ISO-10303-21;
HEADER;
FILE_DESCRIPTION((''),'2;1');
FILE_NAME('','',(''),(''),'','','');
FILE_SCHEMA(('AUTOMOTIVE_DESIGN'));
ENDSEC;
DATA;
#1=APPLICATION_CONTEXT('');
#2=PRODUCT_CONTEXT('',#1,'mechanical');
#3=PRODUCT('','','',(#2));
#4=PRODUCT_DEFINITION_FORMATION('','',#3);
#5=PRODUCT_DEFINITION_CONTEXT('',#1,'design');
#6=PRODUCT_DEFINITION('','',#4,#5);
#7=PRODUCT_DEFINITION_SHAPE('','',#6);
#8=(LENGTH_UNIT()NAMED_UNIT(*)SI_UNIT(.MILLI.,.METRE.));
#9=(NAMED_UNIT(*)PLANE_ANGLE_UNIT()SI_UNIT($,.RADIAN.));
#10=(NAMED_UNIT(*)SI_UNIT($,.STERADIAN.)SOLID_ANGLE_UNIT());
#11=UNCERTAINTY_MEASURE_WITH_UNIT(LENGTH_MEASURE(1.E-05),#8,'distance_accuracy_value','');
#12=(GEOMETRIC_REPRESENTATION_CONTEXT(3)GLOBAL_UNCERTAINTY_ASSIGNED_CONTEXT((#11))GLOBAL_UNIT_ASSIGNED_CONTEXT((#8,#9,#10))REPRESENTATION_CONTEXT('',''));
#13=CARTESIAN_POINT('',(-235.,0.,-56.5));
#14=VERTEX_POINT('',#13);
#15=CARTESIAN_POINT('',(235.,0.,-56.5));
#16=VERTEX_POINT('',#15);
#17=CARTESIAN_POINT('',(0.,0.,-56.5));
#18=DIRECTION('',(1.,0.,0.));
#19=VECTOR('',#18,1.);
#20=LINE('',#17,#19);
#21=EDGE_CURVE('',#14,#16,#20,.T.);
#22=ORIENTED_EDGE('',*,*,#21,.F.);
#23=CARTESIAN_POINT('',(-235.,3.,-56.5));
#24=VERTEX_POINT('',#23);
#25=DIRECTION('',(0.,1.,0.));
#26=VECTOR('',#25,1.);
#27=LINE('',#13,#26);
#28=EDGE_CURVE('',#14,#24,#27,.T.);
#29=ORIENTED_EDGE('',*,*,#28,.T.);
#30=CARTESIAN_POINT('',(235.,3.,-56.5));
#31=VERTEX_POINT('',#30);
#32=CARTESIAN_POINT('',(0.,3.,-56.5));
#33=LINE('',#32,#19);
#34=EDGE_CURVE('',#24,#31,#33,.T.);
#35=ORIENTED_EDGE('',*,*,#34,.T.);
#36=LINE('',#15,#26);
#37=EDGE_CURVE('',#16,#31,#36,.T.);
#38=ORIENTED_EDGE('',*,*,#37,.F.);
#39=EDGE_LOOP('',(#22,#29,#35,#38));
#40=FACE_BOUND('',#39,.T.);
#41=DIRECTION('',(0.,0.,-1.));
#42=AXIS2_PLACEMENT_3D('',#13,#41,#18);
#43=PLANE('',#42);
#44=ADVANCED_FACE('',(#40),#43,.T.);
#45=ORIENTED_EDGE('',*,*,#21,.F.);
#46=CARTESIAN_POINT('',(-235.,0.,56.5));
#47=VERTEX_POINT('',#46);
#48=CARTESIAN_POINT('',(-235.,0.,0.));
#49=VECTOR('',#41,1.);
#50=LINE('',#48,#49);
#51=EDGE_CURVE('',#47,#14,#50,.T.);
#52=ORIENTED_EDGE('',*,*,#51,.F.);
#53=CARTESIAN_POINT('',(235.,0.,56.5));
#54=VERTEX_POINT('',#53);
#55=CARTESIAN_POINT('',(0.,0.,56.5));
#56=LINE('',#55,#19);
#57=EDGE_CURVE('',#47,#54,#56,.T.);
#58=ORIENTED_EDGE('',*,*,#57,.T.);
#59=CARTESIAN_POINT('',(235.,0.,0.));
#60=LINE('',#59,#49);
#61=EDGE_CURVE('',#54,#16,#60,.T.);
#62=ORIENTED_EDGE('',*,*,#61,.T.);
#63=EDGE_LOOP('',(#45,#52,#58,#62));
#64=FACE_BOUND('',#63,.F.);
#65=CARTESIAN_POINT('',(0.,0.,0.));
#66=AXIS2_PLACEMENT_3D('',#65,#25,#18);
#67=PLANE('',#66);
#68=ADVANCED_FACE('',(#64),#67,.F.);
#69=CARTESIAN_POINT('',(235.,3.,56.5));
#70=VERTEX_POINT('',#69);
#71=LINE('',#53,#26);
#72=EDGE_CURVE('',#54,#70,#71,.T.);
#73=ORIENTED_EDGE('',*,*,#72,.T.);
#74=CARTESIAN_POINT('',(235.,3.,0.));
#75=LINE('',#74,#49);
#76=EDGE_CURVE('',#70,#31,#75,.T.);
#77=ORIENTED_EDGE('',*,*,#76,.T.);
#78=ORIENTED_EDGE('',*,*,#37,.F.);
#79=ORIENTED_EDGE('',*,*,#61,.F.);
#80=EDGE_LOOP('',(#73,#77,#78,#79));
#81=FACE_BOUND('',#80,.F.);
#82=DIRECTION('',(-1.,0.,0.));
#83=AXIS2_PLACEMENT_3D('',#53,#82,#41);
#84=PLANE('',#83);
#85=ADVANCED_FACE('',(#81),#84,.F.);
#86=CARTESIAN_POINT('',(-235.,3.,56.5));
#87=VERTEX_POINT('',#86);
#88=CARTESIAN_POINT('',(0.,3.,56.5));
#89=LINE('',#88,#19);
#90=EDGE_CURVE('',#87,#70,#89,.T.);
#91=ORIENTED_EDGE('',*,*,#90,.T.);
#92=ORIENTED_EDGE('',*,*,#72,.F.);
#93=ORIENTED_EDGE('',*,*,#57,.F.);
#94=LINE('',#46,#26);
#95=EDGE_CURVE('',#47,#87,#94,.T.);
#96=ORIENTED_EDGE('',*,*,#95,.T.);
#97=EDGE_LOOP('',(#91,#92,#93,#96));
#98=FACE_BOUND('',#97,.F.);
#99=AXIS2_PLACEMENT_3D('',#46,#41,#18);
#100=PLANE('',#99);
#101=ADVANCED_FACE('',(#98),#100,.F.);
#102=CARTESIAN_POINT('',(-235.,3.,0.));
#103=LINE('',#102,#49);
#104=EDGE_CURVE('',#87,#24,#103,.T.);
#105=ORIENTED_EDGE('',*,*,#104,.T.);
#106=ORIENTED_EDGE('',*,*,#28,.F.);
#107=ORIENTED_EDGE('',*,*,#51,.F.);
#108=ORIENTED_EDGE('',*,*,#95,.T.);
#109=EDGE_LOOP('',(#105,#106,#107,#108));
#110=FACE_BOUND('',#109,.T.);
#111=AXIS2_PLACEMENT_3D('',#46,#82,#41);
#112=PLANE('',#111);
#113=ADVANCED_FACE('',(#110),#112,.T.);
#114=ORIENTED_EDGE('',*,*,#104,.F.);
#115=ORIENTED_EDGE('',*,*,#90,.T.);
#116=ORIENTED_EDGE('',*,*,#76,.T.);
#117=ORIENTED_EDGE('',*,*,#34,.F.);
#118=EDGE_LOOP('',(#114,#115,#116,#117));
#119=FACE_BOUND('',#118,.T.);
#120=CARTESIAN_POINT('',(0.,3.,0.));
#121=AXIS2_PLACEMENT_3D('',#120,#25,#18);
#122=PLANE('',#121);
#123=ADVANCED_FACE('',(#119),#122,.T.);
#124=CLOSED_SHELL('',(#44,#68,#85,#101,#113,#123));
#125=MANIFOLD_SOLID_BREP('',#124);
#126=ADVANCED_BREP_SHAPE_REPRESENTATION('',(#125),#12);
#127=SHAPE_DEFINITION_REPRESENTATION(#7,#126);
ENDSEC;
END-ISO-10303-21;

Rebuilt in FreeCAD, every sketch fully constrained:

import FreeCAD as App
import Part
import Sketcher


def add_polygon(sketch, points):
    """Adds a closed chain of lines whose ends are joined by coincident constraints."""
    first, n = sketch.GeometryCount, len(points)
    for a, b in zip(points, points[1:] + points[:1]):
        sketch.addGeometry(Part.LineSegment(App.Vector(*a, 0), App.Vector(*b, 0)), False)
    for i in range(n):
        sketch.addConstraint(Sketcher.Constraint("Coincident", first + i, 2, first + (i + 1) % n, 1))

doc = App.newDocument("Part")
body = doc.addObject("PartDesign::Body", "Body")

# Sketch on XZ plane
sketch1 = body.newObject("Sketcher::SketchObject", "Sketch")
sketch1.AttachmentSupport = (doc.getObject("XZ_Plane"), [""])
sketch1.MapMode = "FlatFace"
add_polygon(sketch1, [(-235, -56), (-235, 56), (235, 56), (235, -56)])  # lines 0-3
sketch1.addConstraint(Sketcher.Constraint("Vertical", 0))
sketch1.addConstraint(Sketcher.Constraint("Horizontal", 1))
sketch1.addConstraint(Sketcher.Constraint("Vertical", 2))
sketch1.addConstraint(Sketcher.Constraint("Horizontal", 3))
sketch1.addConstraint(Sketcher.Constraint("Symmetric", 0, 2, 2, 2, -1, 1))
sketch1.addConstraint(Sketcher.Constraint("DistanceX", 1, 1, 1, 2, 470.0))
sketch1.addConstraint(Sketcher.Constraint("DistanceY", 0, 1, 0, 2, 113.0))
pad1 = body.newObject("PartDesign::Pad", "Pad")
pad1.Profile = sketch1
pad1.Length = 3
pad1.Reversed = True

doc.recompute()
